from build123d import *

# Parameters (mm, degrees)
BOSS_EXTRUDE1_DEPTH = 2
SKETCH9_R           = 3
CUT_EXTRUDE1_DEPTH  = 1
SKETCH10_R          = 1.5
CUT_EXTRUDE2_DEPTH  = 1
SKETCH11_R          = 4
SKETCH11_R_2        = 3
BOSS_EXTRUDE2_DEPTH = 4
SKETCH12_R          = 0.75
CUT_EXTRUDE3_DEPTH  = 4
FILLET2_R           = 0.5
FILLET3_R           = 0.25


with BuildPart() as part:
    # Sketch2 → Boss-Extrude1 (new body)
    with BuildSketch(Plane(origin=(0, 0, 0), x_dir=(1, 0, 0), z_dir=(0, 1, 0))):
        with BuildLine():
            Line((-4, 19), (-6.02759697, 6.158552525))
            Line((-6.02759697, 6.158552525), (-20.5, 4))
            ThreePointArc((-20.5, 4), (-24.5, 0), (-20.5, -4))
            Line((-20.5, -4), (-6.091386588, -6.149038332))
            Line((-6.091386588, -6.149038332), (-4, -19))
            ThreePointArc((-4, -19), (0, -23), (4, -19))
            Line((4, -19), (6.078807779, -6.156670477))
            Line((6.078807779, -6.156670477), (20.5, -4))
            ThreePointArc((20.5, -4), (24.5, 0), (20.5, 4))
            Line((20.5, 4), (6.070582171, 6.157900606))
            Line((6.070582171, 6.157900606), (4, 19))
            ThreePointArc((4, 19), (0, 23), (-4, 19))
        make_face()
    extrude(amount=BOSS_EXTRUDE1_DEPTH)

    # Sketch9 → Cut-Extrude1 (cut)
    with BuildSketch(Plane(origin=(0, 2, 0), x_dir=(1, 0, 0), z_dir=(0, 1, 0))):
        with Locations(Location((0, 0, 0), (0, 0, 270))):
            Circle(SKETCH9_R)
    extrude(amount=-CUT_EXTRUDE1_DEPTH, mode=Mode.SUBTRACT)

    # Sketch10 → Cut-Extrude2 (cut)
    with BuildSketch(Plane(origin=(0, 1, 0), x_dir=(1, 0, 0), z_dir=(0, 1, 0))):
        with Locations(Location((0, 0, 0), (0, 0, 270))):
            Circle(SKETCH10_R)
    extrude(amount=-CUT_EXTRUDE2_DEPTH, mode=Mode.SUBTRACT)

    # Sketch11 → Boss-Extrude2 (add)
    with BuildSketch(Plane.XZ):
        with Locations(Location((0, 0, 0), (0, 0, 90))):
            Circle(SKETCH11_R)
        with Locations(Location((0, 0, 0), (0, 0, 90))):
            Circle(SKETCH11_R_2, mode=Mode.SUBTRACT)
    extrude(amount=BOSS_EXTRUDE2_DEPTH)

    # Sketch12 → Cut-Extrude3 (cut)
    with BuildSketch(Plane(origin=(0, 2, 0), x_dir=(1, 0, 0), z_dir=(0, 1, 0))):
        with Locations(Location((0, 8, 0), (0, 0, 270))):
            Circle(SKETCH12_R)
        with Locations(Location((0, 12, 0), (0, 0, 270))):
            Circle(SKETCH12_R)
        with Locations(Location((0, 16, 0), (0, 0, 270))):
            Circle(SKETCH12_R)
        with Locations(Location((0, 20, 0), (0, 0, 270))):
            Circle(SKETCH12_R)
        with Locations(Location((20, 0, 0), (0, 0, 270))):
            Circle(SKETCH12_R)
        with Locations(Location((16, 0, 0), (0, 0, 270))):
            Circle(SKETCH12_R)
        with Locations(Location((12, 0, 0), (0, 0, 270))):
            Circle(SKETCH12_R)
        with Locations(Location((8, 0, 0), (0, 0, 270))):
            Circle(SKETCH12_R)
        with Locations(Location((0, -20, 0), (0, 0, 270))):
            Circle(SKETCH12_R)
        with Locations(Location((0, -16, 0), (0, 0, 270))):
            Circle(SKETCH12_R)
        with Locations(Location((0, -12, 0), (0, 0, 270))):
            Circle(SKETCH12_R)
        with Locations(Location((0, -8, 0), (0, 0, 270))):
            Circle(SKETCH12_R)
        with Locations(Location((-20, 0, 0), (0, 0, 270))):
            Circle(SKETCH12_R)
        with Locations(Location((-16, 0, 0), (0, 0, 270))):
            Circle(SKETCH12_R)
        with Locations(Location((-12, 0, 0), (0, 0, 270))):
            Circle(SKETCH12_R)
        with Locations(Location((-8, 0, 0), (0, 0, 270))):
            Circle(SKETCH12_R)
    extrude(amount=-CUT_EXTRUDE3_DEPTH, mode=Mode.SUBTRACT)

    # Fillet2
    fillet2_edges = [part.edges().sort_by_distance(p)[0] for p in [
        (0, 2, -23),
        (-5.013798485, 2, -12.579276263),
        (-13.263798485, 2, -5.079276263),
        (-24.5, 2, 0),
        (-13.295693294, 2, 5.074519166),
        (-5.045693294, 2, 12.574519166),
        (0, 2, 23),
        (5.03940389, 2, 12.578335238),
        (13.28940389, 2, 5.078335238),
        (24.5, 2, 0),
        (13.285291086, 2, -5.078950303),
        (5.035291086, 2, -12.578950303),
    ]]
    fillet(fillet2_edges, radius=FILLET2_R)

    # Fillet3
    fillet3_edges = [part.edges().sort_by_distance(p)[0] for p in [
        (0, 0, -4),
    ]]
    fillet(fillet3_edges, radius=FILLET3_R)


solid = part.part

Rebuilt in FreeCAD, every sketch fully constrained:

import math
import FreeCAD as App
import Part
import Sketcher
from FreeCAD import Vector


def edges_at(feature, points):
    """Names of the edges that pass closest to the given points."""
    edges = feature.Shape.Edges
    near = lambda p: min(range(len(edges)), key=lambda i: edges[i].distToShape(Part.Vertex(*p))[0])
    return sorted({f"Edge{near(p) + 1}" for p in points})

doc = App.newDocument("Part")
body = doc.addObject("PartDesign::Body", "Body")

sketch1 = body.newObject("Sketcher::SketchObject", "Sketch")
sketch1.AttachmentSupport = (doc.getObject("XZ_Plane"), [""])
sketch1.MapMode = "FlatFace"
sketch1.addGeometry(Part.LineSegment(Vector(-4, -19, 0), Vector(-6, -6.2, 0)), False)
sketch1.addGeometry(Part.LineSegment(Vector(-6, -6.2, 0), Vector(-20.5, -4, 0)), False)
sketch1.addGeometry(Part.ArcOfCircle(Part.Circle(Vector(-20.5, 0, 0), Vector(0, 0, 1), 4), math.radians(90), math.radians(270)), False)
sketch1.addGeometry(Part.LineSegment(Vector(-20.5, 4, 0), Vector(-6.1, 6.1, 0)), False)
sketch1.addGeometry(Part.LineSegment(Vector(-6.1, 6.1, 0), Vector(-4, 19, 0)), False)
sketch1.addGeometry(Part.ArcOfCircle(Part.Circle(Vector(0, 19, 0), Vector(0, 0, 1), 4), math.radians(0), math.radians(180)), False)
sketch1.addGeometry(Part.LineSegment(Vector(4, 19, 0), Vector(6.1, 6.2, 0)), False)
sketch1.addGeometry(Part.LineSegment(Vector(6.1, 6.2, 0), Vector(20.5, 4, 0)), False)
sketch1.addGeometry(Part.ArcOfCircle(Part.Circle(Vector(20.5, 0, 0), Vector(0, 0, 1), 4), math.radians(-90), math.radians(90)), False)
sketch1.addGeometry(Part.LineSegment(Vector(20.5, -4, 0), Vector(6.1, -6.2, 0)), False)
sketch1.addGeometry(Part.LineSegment(Vector(6.1, -6.2, 0), Vector(4, -19, 0)), False)
sketch1.addGeometry(Part.ArcOfCircle(Part.Circle(Vector(0, -19, 0), Vector(0, 0, 1), 4), math.radians(180), math.radians(360)), False)
sketch1.addConstraint(Sketcher.Constraint("Coincident", 0, 2, 1, 1))
sketch1.addConstraint(Sketcher.Constraint("Coincident", 1, 2, 2, 2))
sketch1.addConstraint(Sketcher.Constraint("Coincident", 2, 1, 3, 1))
sketch1.addConstraint(Sketcher.Constraint("Coincident", 3, 2, 4, 1))
sketch1.addConstraint(Sketcher.Constraint("Coincident", 4, 2, 5, 2))
sketch1.addConstraint(Sketcher.Constraint("Coincident", 5, 1, 6, 1))
sketch1.addConstraint(Sketcher.Constraint("Coincident", 6, 2, 7, 1))
sketch1.addConstraint(Sketcher.Constraint("Coincident", 7, 2, 8, 2))
sketch1.addConstraint(Sketcher.Constraint("Coincident", 8, 1, 9, 1))
sketch1.addConstraint(Sketcher.Constraint("Coincident", 9, 2, 10, 1))
sketch1.addConstraint(Sketcher.Constraint("Coincident", 10, 2, 11, 2))
sketch1.addConstraint(Sketcher.Constraint("Coincident", 11, 1, 0, 1))
sketch1.addConstraint(Sketcher.Constraint("Equal", 2, 5))
sketch1.addConstraint(Sketcher.Constraint("Equal", 5, 8))
sketch1.addConstraint(Sketcher.Constraint("Equal", 8, 11))
sketch1.addConstraint(Sketcher.Constraint("Symmetric", 2, 3, 8, 3, -1, 1))
sketch1.addConstraint(Sketcher.Constraint("Symmetric", 5, 3, 11, 3, -1, 1))
sketch1.addConstraint(Sketcher.Constraint("Symmetric", 4, 2, 5, 1, -2))
sketch1.addConstraint(Sketcher.Constraint("Symmetric", 2, 1, 7, 2, -2))
sketch1.addConstraint(Sketcher.Constraint("Horizontal", 5, 3, 4, 2))
sketch1.addConstraint(Sketcher.Constraint("Horizontal", 11, 3, 10, 2))
sketch1.addConstraint(Sketcher.Constraint("Horizontal", 10, 2, 11, 1))
sketch1.addConstraint(Sketcher.Constraint("Vertical", 2, 3, 1, 2))
sketch1.addConstraint(Sketcher.Constraint("Vertical", 1, 2, 2, 1))
sketch1.addConstraint(Sketcher.Constraint("Vertical", 7, 2, 8, 1))
sketch1.addConstraint(Sketcher.Constraint("Radius", 2, 4.0))
sketch1.addConstraint(Sketcher.Constraint("DistanceY", -1, 1, 5, 3, 19.0))
sketch1.addConstraint(Sketcher.Constraint("DistanceX", 2, 3, 8, 3, 41.0))
sketch1.addConstraint(Sketcher.Constraint("DistanceY", 9, 2, -1, 1, 6.157901))
sketch1.addConstraint(Sketcher.Constraint("Distance", 1, 14.632491))
sketch1.addConstraint(Sketcher.Constraint("Distance", 6, 13.010479))
sketch1.addConstraint(Sketcher.Constraint("Distance", 9, 14.589881))
sketch1.addConstraint(Sketcher.Constraint("DistanceY", -1, 1, 3, 2, 6.149038))
sketch1.addConstraint(Sketcher.Constraint("DistanceY", -1, 1, 6, 2, 6.15667))
sketch1.addConstraint(Sketcher.Constraint("DistanceX", 3, 2, 0, 2, 0.06379))
sketch1.addConstraint(Sketcher.Constraint("DistanceY", 0, 2, 3, 2, 12.307591))
pad1 = body.newObject("PartDesign::Pad", "Pad")
pad1.Profile = sketch1
pad1.Length = 2
pad1.Reversed = True

sketch2 = body.newObject("Sketcher::SketchObject", "Sketch001")
sketch2.AttachmentSupport = (doc.getObject("XZ_Plane"), [""])
sketch2.MapMode = "FlatFace"
sketch2.AttachmentOffset = App.Placement(Vector(0, 0, -2), App.Rotation())
sketch2.addGeometry(Part.Circle(Vector(0, 0, 0), Vector(0, 0, 1), 3), False)
sketch2.addConstraint(Sketcher.Constraint("Coincident", 0, 3, -1, 1))
sketch2.addConstraint(Sketcher.Constraint("Diameter", 0, 6.0))
pocket1 = body.newObject("PartDesign::Pocket", "Pocket")
pocket1.Profile = sketch2
pocket1.Length = 1
pocket1.Reversed = True

sketch3 = body.newObject("Sketcher::SketchObject", "Sketch002")
sketch3.AttachmentSupport = (doc.getObject("XZ_Plane"), [""])
sketch3.MapMode = "FlatFace"
sketch3.AttachmentOffset = App.Placement(Vector(0, 0, -1), App.Rotation())
sketch3.addGeometry(Part.Circle(Vector(0, 0, 0), Vector(0, 0, 1), 1.5), False)
sketch3.addConstraint(Sketcher.Constraint("Coincident", 0, 3, -1, 1))
sketch3.addConstraint(Sketcher.Constraint("Diameter", 0, 3.0))
pocket2 = body.newObject("PartDesign::Pocket", "Pocket001")
pocket2.Profile = sketch3
pocket2.Length = 1
pocket2.Reversed = True

sketch4 = body.newObject("Sketcher::SketchObject", "Sketch003")
sketch4.AttachmentSupport = (doc.getObject("XZ_Plane"), [""])
sketch4.MapMode = "FlatFace"
sketch4.addGeometry(Part.Circle(Vector(0, 0, 0), Vector(0, 0, 1), 4), False)
sketch4.addGeometry(Part.Circle(Vector(0, 0, 0), Vector(0, 0, 1), 3), False)
sketch4.addConstraint(Sketcher.Constraint("Coincident", 0, 3, -1, 1))
sketch4.addConstraint(Sketcher.Constraint("Coincident", 1, 3, -1, 1))
sketch4.addConstraint(Sketcher.Constraint("Diameter", 0, 8.0))
sketch4.addConstraint(Sketcher.Constraint("Diameter", 1, 6.0))
pad2 = body.newObject("PartDesign::Pad", "Pad001")
pad2.Profile = sketch4
pad2.Length = 4

sketch5 = body.newObject("Sketcher::SketchObject", "Sketch004")
sketch5.AttachmentSupport = (doc.getObject("XZ_Plane"), [""])
sketch5.MapMode = "FlatFace"
sketch5.AttachmentOffset = App.Placement(Vector(0, 0, -2), App.Rotation())
sketch5.addGeometry(Part.Circle(Vector(0, -8, 0), Vector(0, 0, 1), 0.8), False)
sketch5.addGeometry(Part.Circle(Vector(0, -12, 0), Vector(0, 0, 1), 0.8), False)
sketch5.addGeometry(Part.Circle(Vector(0, -16, 0), Vector(0, 0, 1), 0.8), False)
sketch5.addGeometry(Part.Circle(Vector(0, -20, 0), Vector(0, 0, 1), 0.8), False)
sketch5.addGeometry(Part.Circle(Vector(20, 0, 0), Vector(0, 0, 1), 0.8), False)
sketch5.addGeometry(Part.Circle(Vector(16, 0, 0), Vector(0, 0, 1), 0.8), False)
sketch5.addGeometry(Part.Circle(Vector(12, 0, 0), Vector(0, 0, 1), 0.8), False)
sketch5.addGeometry(Part.Circle(Vector(8, 0, 0), Vector(0, 0, 1), 0.8), False)
sketch5.addGeometry(Part.Circle(Vector(0, 20, 0), Vector(0, 0, 1), 0.8), False)
sketch5.addGeometry(Part.Circle(Vector(0, 16, 0), Vector(0, 0, 1), 0.8), False)
sketch5.addGeometry(Part.Circle(Vector(0, 12, 0), Vector(0, 0, 1), 0.8), False)
sketch5.addGeometry(Part.Circle(Vector(0, 8, 0), Vector(0, 0, 1), 0.8), False)
sketch5.addGeometry(Part.Circle(Vector(-20, 0, 0), Vector(0, 0, 1), 0.8), False)
sketch5.addGeometry(Part.Circle(Vector(-16, 0, 0), Vector(0, 0, 1), 0.8), False)
sketch5.addGeometry(Part.Circle(Vector(-12, 0, 0), Vector(0, 0, 1), 0.8), False)
sketch5.addGeometry(Part.Circle(Vector(-8, 0, 0), Vector(0, 0, 1), 0.8), False)
sketch5.addConstraint(Sketcher.Constraint("Equal", 0, 1))
sketch5.addConstraint(Sketcher.Constraint("Equal", 1, 2))
sketch5.addConstraint(Sketcher.Constraint("Equal", 2, 3))
sketch5.addConstraint(Sketcher.Constraint("Equal", 3, 4))
sketch5.addConstraint(Sketcher.Constraint("Equal", 4, 5))
sketch5.addConstraint(Sketcher.Constraint("Equal", 5, 6))
sketch5.addConstraint(Sketcher.Constraint("Equal", 6, 7))
sketch5.addConstraint(Sketcher.Constraint("Equal", 7, 8))
sketch5.addConstraint(Sketcher.Constraint("Equal", 8, 9))
sketch5.addConstraint(Sketcher.Constraint("Equal", 9, 10))
sketch5.addConstraint(Sketcher.Constraint("Equal", 10, 11))
sketch5.addConstraint(Sketcher.Constraint("Equal", 11, 12))
sketch5.addConstraint(Sketcher.Constraint("Equal", 12, 13))
sketch5.addConstraint(Sketcher.Constraint("Equal", 13, 14))
sketch5.addConstraint(Sketcher.Constraint("Equal", 14, 15))
sketch5.addConstraint(Sketcher.Constraint("Symmetric", 3, 3, 8, 3, -1, 1))
sketch5.addConstraint(Sketcher.Constraint("Symmetric", 2, 3, 9, 3, -1, 1))
sketch5.addConstraint(Sketcher.Constraint("Symmetric", 1, 3, 10, 3, -1, 1))
sketch5.addConstraint(Sketcher.Constraint("Symmetric", 0, 3, 11, 3, -1, 1))
sketch5.addConstraint(Sketcher.Constraint("Symmetric", 4, 3, 12, 3, -1, 1))
sketch5.addConstraint(Sketcher.Constraint("Symmetric", 5, 3, 13, 3, -1, 1))
sketch5.addConstraint(Sketcher.Constraint("Symmetric", 6, 3, 14, 3, -1, 1))
sketch5.addConstraint(Sketcher.Constraint("Symmetric", 7, 3, 15, 3, -1, 1))
sketch5.addConstraint(Sketcher.Constraint("PointOnObject", 0, 3, -2))
sketch5.addConstraint(Sketcher.Constraint("PointOnObject", 1, 3, -2))
sketch5.addConstraint(Sketcher.Constraint("PointOnObject", 2, 3, -2))
sketch5.addConstraint(Sketcher.Constraint("PointOnObject", 3, 3, -2))
sketch5.addConstraint(Sketcher.Constraint("PointOnObject", 4, 3, -1))
sketch5.addConstraint(Sketcher.Constraint("PointOnObject", 5, 3, -1))
sketch5.addConstraint(Sketcher.Constraint("PointOnObject", 6, 3, -1))
sketch5.addConstraint(Sketcher.Constraint("PointOnObject", 7, 3, -1))
sketch5.addConstraint(Sketcher.Constraint("Diameter", 0, 1.5))
sketch5.addConstraint(Sketcher.Constraint("DistanceY", 0, 3, -1, 1, 8.0))
sketch5.addConstraint(Sketcher.Constraint("DistanceY", 1, 3, -1, 1, 12.0))
sketch5.addConstraint(Sketcher.Constraint("DistanceY", 2, 3, -1, 1, 16.0))
sketch5.addConstraint(Sketcher.Constraint("DistanceY", 3, 3, -1, 1, 20.0))
sketch5.addConstraint(Sketcher.Constraint("DistanceX", -1, 1, 4, 3, 20.0))
sketch5.addConstraint(Sketcher.Constraint("DistanceX", -1, 1, 5, 3, 16.0))
sketch5.addConstraint(Sketcher.Constraint("DistanceX", -1, 1, 6, 3, 12.0))
sketch5.addConstraint(Sketcher.Constraint("DistanceX", -1, 1, 7, 3, 8.0))
pocket3 = body.newObject("PartDesign::Pocket", "Pocket002")
pocket3.Profile = sketch5
pocket3.Length = 4
pocket3.Reversed = True
doc.recompute()

fillet = body.newObject("PartDesign::Fillet", "Fillet")
fillet.Base = (pocket3, edges_at(pocket3, [
    (0, 2, -23),
    (-5.014, 2, -12.579),
    (-13.264, 2, -5.079),
    (-24.5, 2, 0),
    (-13.296, 2, 5.075),
    (-5.046, 2, 12.575),
    (0, 2, 23),
    (5.039, 2, 12.578),
    (13.289, 2, 5.078),
    (24.5, 2, 0),
    (13.285, 2, -5.079),
    (5.035, 2, -12.579),
]))
fillet.Radius = 0.5
doc.recompute()

fillet2 = body.newObject("PartDesign::Fillet", "Fillet001")
fillet2.Base = (fillet, edges_at(fillet, [(0, 0, -4)]))
fillet2.Radius = 0.25

doc.recompute()
